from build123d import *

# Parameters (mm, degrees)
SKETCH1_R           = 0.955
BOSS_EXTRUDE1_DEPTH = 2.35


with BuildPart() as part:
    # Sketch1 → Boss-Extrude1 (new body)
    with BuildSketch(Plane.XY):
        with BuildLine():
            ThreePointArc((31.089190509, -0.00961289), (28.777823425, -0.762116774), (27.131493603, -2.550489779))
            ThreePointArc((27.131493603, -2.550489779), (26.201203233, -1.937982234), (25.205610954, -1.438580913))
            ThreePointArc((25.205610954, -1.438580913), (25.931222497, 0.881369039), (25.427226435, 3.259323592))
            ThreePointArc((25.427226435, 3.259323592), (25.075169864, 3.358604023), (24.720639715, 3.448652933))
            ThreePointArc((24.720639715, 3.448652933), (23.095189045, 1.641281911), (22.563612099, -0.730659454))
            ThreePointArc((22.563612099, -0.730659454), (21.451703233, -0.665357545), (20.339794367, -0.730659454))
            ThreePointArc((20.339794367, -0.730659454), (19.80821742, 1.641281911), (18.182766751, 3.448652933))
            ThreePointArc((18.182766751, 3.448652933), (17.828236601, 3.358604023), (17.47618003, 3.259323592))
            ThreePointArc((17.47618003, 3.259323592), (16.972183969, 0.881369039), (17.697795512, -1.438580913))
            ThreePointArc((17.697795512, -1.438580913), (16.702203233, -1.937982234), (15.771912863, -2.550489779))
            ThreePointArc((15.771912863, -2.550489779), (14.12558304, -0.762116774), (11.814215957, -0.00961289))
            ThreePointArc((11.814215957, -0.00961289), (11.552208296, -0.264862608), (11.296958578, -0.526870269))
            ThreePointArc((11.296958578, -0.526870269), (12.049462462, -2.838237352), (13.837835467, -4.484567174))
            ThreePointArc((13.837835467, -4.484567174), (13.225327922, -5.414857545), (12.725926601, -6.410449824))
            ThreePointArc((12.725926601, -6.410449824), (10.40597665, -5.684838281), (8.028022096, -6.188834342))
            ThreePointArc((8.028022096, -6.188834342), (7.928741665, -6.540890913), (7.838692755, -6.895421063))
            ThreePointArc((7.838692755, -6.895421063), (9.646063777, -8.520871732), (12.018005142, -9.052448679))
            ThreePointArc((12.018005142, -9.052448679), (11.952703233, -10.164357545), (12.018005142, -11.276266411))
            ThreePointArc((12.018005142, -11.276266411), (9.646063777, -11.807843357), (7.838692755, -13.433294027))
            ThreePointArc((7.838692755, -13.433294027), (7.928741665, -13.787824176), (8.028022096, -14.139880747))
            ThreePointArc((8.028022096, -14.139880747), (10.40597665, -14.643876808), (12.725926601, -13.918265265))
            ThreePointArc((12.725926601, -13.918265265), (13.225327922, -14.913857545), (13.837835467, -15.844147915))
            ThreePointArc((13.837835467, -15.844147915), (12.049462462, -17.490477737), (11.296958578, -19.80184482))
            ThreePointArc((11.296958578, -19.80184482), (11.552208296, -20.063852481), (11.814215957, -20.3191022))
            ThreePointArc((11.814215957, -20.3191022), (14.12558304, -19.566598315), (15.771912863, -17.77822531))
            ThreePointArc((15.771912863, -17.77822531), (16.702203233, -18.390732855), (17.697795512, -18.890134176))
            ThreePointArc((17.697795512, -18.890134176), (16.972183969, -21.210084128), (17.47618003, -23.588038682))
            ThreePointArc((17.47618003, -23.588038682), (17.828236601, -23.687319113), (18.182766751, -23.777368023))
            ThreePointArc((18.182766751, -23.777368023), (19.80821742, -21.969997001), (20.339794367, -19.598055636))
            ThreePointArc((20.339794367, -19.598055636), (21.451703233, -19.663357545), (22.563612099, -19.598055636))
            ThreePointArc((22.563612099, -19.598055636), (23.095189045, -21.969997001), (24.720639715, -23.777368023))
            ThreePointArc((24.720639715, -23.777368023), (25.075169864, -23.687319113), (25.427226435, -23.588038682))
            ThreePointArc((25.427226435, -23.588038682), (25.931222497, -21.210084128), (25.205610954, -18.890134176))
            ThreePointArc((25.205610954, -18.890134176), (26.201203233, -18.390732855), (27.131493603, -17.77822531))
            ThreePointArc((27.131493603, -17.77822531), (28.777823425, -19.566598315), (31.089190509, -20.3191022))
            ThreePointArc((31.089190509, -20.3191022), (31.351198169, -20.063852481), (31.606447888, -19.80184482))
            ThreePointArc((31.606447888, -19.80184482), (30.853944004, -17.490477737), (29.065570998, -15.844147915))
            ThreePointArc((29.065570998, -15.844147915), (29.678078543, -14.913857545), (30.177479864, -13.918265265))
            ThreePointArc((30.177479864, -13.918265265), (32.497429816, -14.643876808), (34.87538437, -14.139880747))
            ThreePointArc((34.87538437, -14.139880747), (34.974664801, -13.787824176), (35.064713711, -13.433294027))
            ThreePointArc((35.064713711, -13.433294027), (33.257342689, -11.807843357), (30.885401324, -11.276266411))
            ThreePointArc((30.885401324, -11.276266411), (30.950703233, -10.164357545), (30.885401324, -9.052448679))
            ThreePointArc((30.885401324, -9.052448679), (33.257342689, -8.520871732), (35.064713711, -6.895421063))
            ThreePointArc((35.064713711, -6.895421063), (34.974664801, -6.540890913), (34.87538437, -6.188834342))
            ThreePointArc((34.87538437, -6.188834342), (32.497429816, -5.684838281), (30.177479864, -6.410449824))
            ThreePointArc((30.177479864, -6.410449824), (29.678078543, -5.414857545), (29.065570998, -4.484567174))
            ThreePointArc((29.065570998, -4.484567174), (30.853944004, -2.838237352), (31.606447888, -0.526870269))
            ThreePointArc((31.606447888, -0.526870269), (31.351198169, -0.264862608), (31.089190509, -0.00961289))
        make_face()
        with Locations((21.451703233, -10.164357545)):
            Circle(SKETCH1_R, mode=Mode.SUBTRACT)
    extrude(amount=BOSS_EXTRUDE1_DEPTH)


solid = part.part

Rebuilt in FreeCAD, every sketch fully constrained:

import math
import FreeCAD as App
import Part
import Sketcher
from FreeCAD import Vector

doc = App.newDocument("Part")
body = doc.addObject("PartDesign::Body", "Body")

# Sketch on XY plane
sketch1 = body.newObject("Sketcher::SketchObject", "Sketch")
sketch1.AttachmentSupport = (doc.getObject("XY_Plane"), [""])
sketch1.MapMode = "FlatFace"
sketch1.addGeometry(Part.ArcOfCircle(Part.Circle(Vector(31.4, -4.8, 0), Vector(0, 0, 1), 4.8), math.radians(93), math.radians(152)), False)
sketch1.addGeometry(Part.ArcOfCircle(Part.Circle(Vector(21.5, -10.2, 0), Vector(0, 0, 1), 9.5), math.radians(53.28), math.radians(66.72)), False)
sketch1.addGeometry(Part.ArcOfCircle(Part.Circle(Vector(21.1, 1.1, 0), Vector(0, 0, 1), 4.8), math.radians(-32), math.radians(27)), False)
sketch1.addGeometry(Part.ArcOfCircle(Part.Circle(Vector(21.5, -10.2, 0), Vector(0, 0, 1), 14), math.radians(73.5), math.radians(76.5)), False)
sketch1.addGeometry(Part.ArcOfCircle(Part.Circle(Vector(27.4, -0.6, 0), Vector(0, 0, 1), 4.8), math.radians(123), math.radians(182)), False)
sketch1.addGeometry(Part.ArcOfCircle(Part.Circle(Vector(21.5, -10.2, 0), Vector(0, 0, 1), 9.5), math.radians(83.28), math.radians(96.72)), False)
sketch1.addGeometry(Part.ArcOfCircle(Part.Circle(Vector(15.5, -0.6, 0), Vector(0, 0, 1), 4.8), math.radians(-2), math.radians(57)), False)
sketch1.addGeometry(Part.ArcOfCircle(Part.Circle(Vector(21.5, -10.2, 0), Vector(0, 0, 1), 14), math.radians(103.5), math.radians(106.5)), False)
sketch1.addGeometry(Part.ArcOfCircle(Part.Circle(Vector(21.8, 1.1, 0), Vector(0, 0, 1), 4.8), math.radians(153), math.radians(212)), False)
sketch1.addGeometry(Part.ArcOfCircle(Part.Circle(Vector(21.5, -10.2, 0), Vector(0, 0, 1), 9.5), math.radians(113.28), math.radians(126.72)), False)
sketch1.addGeometry(Part.ArcOfCircle(Part.Circle(Vector(11.5, -4.8, 0), Vector(0, 0, 1), 4.8), math.radians(28), math.radians(87)), False)
sketch1.addGeometry(Part.ArcOfCircle(Part.Circle(Vector(21.5, -10.2, 0), Vector(0, 0, 1), 14), math.radians(133.5), math.radians(136.5)), False)
sketch1.addGeometry(Part.ArcOfCircle(Part.Circle(Vector(16.1, -0.2, 0), Vector(0, 0, 1), 4.8), math.radians(-177), math.radians(-118)), False)
sketch1.addGeometry(Part.ArcOfCircle(Part.Circle(Vector(21.5, -10.2, 0), Vector(0, 0, 1), 9.5), math.radians(143.28), math.radians(156.72)), False)
sketch1.addGeometry(Part.ArcOfCircle(Part.Circle(Vector(10.2, -10.5, 0), Vector(0, 0, 1), 4.8), math.radians(58), math.radians(117)), False)
sketch1.addGeometry(Part.ArcOfCircle(Part.Circle(Vector(21.5, -10.2, 0), Vector(0, 0, 1), 14), math.radians(163.5), math.radians(166.5)), False)
sketch1.addGeometry(Part.ArcOfCircle(Part.Circle(Vector(11.8, -4.3, 0), Vector(0, 0, 1), 4.8), math.radians(-147), math.radians(-88)), False)
sketch1.addGeometry(Part.ArcOfCircle(Part.Circle(Vector(21.5, -10.2, 0), Vector(0, 0, 1), 9.5), math.radians(173.28), math.radians(186.72)), False)
sketch1.addGeometry(Part.ArcOfCircle(Part.Circle(Vector(11.8, -16.1, 0), Vector(0, 0, 1), 4.8), math.radians(88), math.radians(147)), False)
sketch1.addGeometry(Part.ArcOfCircle(Part.Circle(Vector(21.5, -10.2, 0), Vector(0, 0, 1), 14), math.radians(-166.5), math.radians(-163.5)), False)
sketch1.addGeometry(Part.ArcOfCircle(Part.Circle(Vector(10.2, -9.8, 0), Vector(0, 0, 1), 4.8), math.radians(-117), math.radians(-58)), False)
sketch1.addGeometry(Part.ArcOfCircle(Part.Circle(Vector(21.5, -10.2, 0), Vector(0, 0, 1), 9.5), math.radians(-156.72), math.radians(-143.28)), False)
sketch1.addGeometry(Part.ArcOfCircle(Part.Circle(Vector(16.1, -20.1, 0), Vector(0, 0, 1), 4.8), math.radians(118), math.radians(177)), False)
sketch1.addGeometry(Part.ArcOfCircle(Part.Circle(Vector(21.5, -10.2, 0), Vector(0, 0, 1), 14), math.radians(-136.5), math.radians(-133.5)), False)
sketch1.addGeometry(Part.ArcOfCircle(Part.Circle(Vector(11.5, -15.5, 0), Vector(0, 0, 1), 4.8), math.radians(-87), math.radians(-28)), False)
sketch1.addGeometry(Part.ArcOfCircle(Part.Circle(Vector(21.5, -10.2, 0), Vector(0, 0, 1), 9.5), math.radians(-126.72), math.radians(-113.28)), False)
sketch1.addGeometry(Part.ArcOfCircle(Part.Circle(Vector(21.8, -21.4, 0), Vector(0, 0, 1), 4.8), math.radians(148), math.radians(207)), False)
sketch1.addGeometry(Part.ArcOfCircle(Part.Circle(Vector(21.5, -10.2, 0), Vector(0, 0, 1), 14), math.radians(-106.5), math.radians(-103.5)), False)
sketch1.addGeometry(Part.ArcOfCircle(Part.Circle(Vector(15.5, -19.8, 0), Vector(0, 0, 1), 4.8), math.radians(-57), math.radians(2)), False)
sketch1.addGeometry(Part.ArcOfCircle(Part.Circle(Vector(21.5, -10.2, 0), Vector(0, 0, 1), 9.5), math.radians(-96.72), math.radians(-83.28)), False)
sketch1.addGeometry(Part.ArcOfCircle(Part.Circle(Vector(27.4, -19.8, 0), Vector(0, 0, 1), 4.8), math.radians(178), math.radians(237)), False)
sketch1.addGeometry(Part.ArcOfCircle(Part.Circle(Vector(21.5, -10.2, 0), Vector(0, 0, 1), 14), math.radians(-76.5), math.radians(-73.5)), False)
sketch1.addGeometry(Part.ArcOfCircle(Part.Circle(Vector(21.1, -21.4, 0), Vector(0, 0, 1), 4.8), math.radians(-27), math.radians(32)), False)
sketch1.addGeometry(Part.ArcOfCircle(Part.Circle(Vector(21.5, -10.2, 0), Vector(0, 0, 1), 9.5), math.radians(-66.72), math.radians(-53.28)), False)
sketch1.addGeometry(Part.ArcOfCircle(Part.Circle(Vector(31.4, -15.5, 0), Vector(0, 0, 1), 4.8), math.radians(-152), math.radians(-93)), False)
sketch1.addGeometry(Part.ArcOfCircle(Part.Circle(Vector(21.5, -10.2, 0), Vector(0, 0, 1), 14), math.radians(-46.5), math.radians(-43.5)), False)
sketch1.addGeometry(Part.ArcOfCircle(Part.Circle(Vector(26.8, -20.1, 0), Vector(0, 0, 1), 4.8), math.radians(3), math.radians(62)), False)
sketch1.addGeometry(Part.ArcOfCircle(Part.Circle(Vector(21.5, -10.2, 0), Vector(0, 0, 1), 9.5), math.radians(-36.72), math.radians(-23.28)), False)
sketch1.addGeometry(Part.ArcOfCircle(Part.Circle(Vector(32.7, -9.8, 0), Vector(0, 0, 1), 4.8), math.radians(-122), math.radians(-63)), False)
sketch1.addGeometry(Part.ArcOfCircle(Part.Circle(Vector(21.5, -10.2, 0), Vector(0, 0, 1), 14), math.radians(-16.5), math.radians(-13.5)), False)
sketch1.addGeometry(Part.ArcOfCircle(Part.Circle(Vector(31.1, -16.1, 0), Vector(0, 0, 1), 4.8), math.radians(33), math.radians(92)), False)
sketch1.addGeometry(Part.ArcOfCircle(Part.Circle(Vector(21.5, -10.2, 0), Vector(0, 0, 1), 9.5), math.radians(-6.72), math.radians(6.72)), False)
sketch1.addGeometry(Part.ArcOfCircle(Part.Circle(Vector(31.1, -4.3, 0), Vector(0, 0, 1), 4.8), math.radians(-92), math.radians(-33)), False)
sketch1.addGeometry(Part.ArcOfCircle(Part.Circle(Vector(21.5, -10.2, 0), Vector(0, 0, 1), 14), math.radians(13.5), math.radians(16.5)), False)
sketch1.addGeometry(Part.ArcOfCircle(Part.Circle(Vector(32.7, -10.5, 0), Vector(0, 0, 1), 4.8), math.radians(63), math.radians(122)), False)
sketch1.addGeometry(Part.ArcOfCircle(Part.Circle(Vector(21.5, -10.2, 0), Vector(0, 0, 1), 9.5), math.radians(23.28), math.radians(36.72)), False)
sketch1.addGeometry(Part.ArcOfCircle(Part.Circle(Vector(26.8, -0.2, 0), Vector(0, 0, 1), 4.8), math.radians(-62), math.radians(-3)), False)
sketch1.addGeometry(Part.ArcOfCircle(Part.Circle(Vector(21.5, -10.2, 0), Vector(0, 0, 1), 14), math.radians(43.5), math.radians(46.5)), False)
sketch1.addGeometry(Part.Circle(Vector(21.5, -10.2, 0), Vector(0, 0, 1), 1), False)
sketch1.addConstraint(Sketcher.Constraint("Coincident", 0, 2, 1, 1))
sketch1.addConstraint(Sketcher.Constraint("Coincident", 1, 2, 2, 1))
sketch1.addConstraint(Sketcher.Constraint("Coincident", 2, 2, 3, 1))
sketch1.addConstraint(Sketcher.Constraint("Coincident", 3, 2, 4, 1))
sketch1.addConstraint(Sketcher.Constraint("Coincident", 4, 2, 5, 1))
sketch1.addConstraint(Sketcher.Constraint("Coincident", 5, 2, 6, 1))
sketch1.addConstraint(Sketcher.Constraint("Coincident", 6, 2, 7, 1))
sketch1.addConstraint(Sketcher.Constraint("Coincident", 7, 2, 8, 1))
sketch1.addConstraint(Sketcher.Constraint("Coincident", 8, 2, 9, 1))
sketch1.addConstraint(Sketcher.Constraint("Coincident", 9, 2, 10, 1))
sketch1.addConstraint(Sketcher.Constraint("Coincident", 10, 2, 11, 1))
sketch1.addConstraint(Sketcher.Constraint("Coincident", 11, 2, 12, 1))
sketch1.addConstraint(Sketcher.Constraint("Coincident", 12, 2, 13, 1))
sketch1.addConstraint(Sketcher.Constraint("Coincident", 13, 2, 14, 1))
sketch1.addConstraint(Sketcher.Constraint("Coincident", 14, 2, 15, 1))
sketch1.addConstraint(Sketcher.Constraint("Coincident", 15, 2, 16, 1))
sketch1.addConstraint(Sketcher.Constraint("Coincident", 16, 2, 17, 1))
sketch1.addConstraint(Sketcher.Constraint("Coincident", 17, 2, 18, 1))
sketch1.addConstraint(Sketcher.Constraint("Coincident", 18, 2, 19, 1))
sketch1.addConstraint(Sketcher.Constraint("Coincident", 19, 2, 20, 1))
sketch1.addConstraint(Sketcher.Constraint("Coincident", 20, 2, 21, 1))
sketch1.addConstraint(Sketcher.Constraint("Coincident", 21, 2, 22, 1))
sketch1.addConstraint(Sketcher.Constraint("Coincident", 22, 2, 23, 1))
sketch1.addConstraint(Sketcher.Constraint("Coincident", 23, 2, 24, 1))
sketch1.addConstraint(Sketcher.Constraint("Coincident", 24, 2, 25, 1))
sketch1.addConstraint(Sketcher.Constraint("Coincident", 25, 2, 26, 1))
sketch1.addConstraint(Sketcher.Constraint("Coincident", 26, 2, 27, 1))
sketch1.addConstraint(Sketcher.Constraint("Coincident", 27, 2, 28, 1))
sketch1.addConstraint(Sketcher.Constraint("Coincident", 28, 2, 29, 1))
sketch1.addConstraint(Sketcher.Constraint("Coincident", 29, 2, 30, 1))
sketch1.addConstraint(Sketcher.Constraint("Coincident", 30, 2, 31, 1))
sketch1.addConstraint(Sketcher.Constraint("Coincident", 31, 2, 32, 1))
sketch1.addConstraint(Sketcher.Constraint("Coincident", 32, 2, 33, 1))
sketch1.addConstraint(Sketcher.Constraint("Coincident", 33, 2, 34, 1))
sketch1.addConstraint(Sketcher.Constraint("Coincident", 34, 2, 35, 1))
sketch1.addConstraint(Sketcher.Constraint("Coincident", 35, 2, 36, 1))
sketch1.addConstraint(Sketcher.Constraint("Coincident", 36, 2, 37, 1))
sketch1.addConstraint(Sketcher.Constraint("Coincident", 37, 2, 38, 1))
sketch1.addConstraint(Sketcher.Constraint("Coincident", 38, 2, 39, 1))
sketch1.addConstraint(Sketcher.Constraint("Coincident", 39, 2, 40, 1))
sketch1.addConstraint(Sketcher.Constraint("Coincident", 40, 2, 41, 1))
sketch1.addConstraint(Sketcher.Constraint("Coincident", 41, 2, 42, 1))
sketch1.addConstraint(Sketcher.Constraint("Coincident", 42, 2, 43, 1))
sketch1.addConstraint(Sketcher.Constraint("Coincident", 43, 2, 44, 1))
sketch1.addConstraint(Sketcher.Constraint("Coincident", 44, 2, 45, 1))
sketch1.addConstraint(Sketcher.Constraint("Coincident", 45, 2, 46, 1))
sketch1.addConstraint(Sketcher.Constraint("Coincident", 46, 2, 47, 1))
sketch1.addConstraint(Sketcher.Constraint("Coincident", 47, 2, 0, 1))
sketch1.addConstraint(Sketcher.Constraint("Coincident", 3, 3, 1, 3))
sketch1.addConstraint(Sketcher.Constraint("Coincident", 5, 3, 1, 3))
sketch1.addConstraint(Sketcher.Constraint("Coincident", 7, 3, 1, 3))
sketch1.addConstraint(Sketcher.Constraint("Coincident", 9, 3, 1, 3))
sketch1.addConstraint(Sketcher.Constraint("Coincident", 11, 3, 1, 3))
sketch1.addConstraint(Sketcher.Constraint("Coincident", 13, 3, 1, 3))
sketch1.addConstraint(Sketcher.Constraint("Coincident", 15, 3, 1, 3))
sketch1.addConstraint(Sketcher.Constraint("Coincident", 17, 3, 1, 3))
sketch1.addConstraint(Sketcher.Constraint("Coincident", 19, 3, 1, 3))
sketch1.addConstraint(Sketcher.Constraint("Coincident", 21, 3, 1, 3))
sketch1.addConstraint(Sketcher.Constraint("Coincident", 23, 3, 1, 3))
sketch1.addConstraint(Sketcher.Constraint("Coincident", 25, 3, 1, 3))
sketch1.addConstraint(Sketcher.Constraint("Coincident", 27, 3, 1, 3))
sketch1.addConstraint(Sketcher.Constraint("Coincident", 29, 3, 1, 3))
sketch1.addConstraint(Sketcher.Constraint("Coincident", 31, 3, 1, 3))
sketch1.addConstraint(Sketcher.Constraint("Coincident", 33, 3, 1, 3))
sketch1.addConstraint(Sketcher.Constraint("Coincident", 35, 3, 1, 3))
sketch1.addConstraint(Sketcher.Constraint("Coincident", 37, 3, 1, 3))
sketch1.addConstraint(Sketcher.Constraint("Coincident", 39, 3, 1, 3))
sketch1.addConstraint(Sketcher.Constraint("Coincident", 41, 3, 1, 3))
sketch1.addConstraint(Sketcher.Constraint("Coincident", 43, 3, 1, 3))
sketch1.addConstraint(Sketcher.Constraint("Coincident", 45, 3, 1, 3))
sketch1.addConstraint(Sketcher.Constraint("Coincident", 47, 3, 1, 3))
sketch1.addConstraint(Sketcher.Constraint("Coincident", 48, 3, 1, 3))
sketch1.addConstraint(Sketcher.Constraint("Equal", 0, 2))
sketch1.addConstraint(Sketcher.Constraint("Equal", 2, 4))
sketch1.addConstraint(Sketcher.Constraint("Equal", 1, 5))
sketch1.addConstraint(Sketcher.Constraint("Equal", 4, 6))
sketch1.addConstraint(Sketcher.Constraint("Equal", 3, 7))
sketch1.addConstraint(Sketcher.Constraint("Equal", 6, 8))
sketch1.addConstraint(Sketcher.Constraint("Equal", 5, 9))
sketch1.addConstraint(Sketcher.Constraint("Equal", 8, 10))
sketch1.addConstraint(Sketcher.Constraint("Equal", 7, 11))
sketch1.addConstraint(Sketcher.Constraint("Equal", 10, 12))
sketch1.addConstraint(Sketcher.Constraint("Equal", 9, 13))
sketch1.addConstraint(Sketcher.Constraint("Equal", 12, 14))
sketch1.addConstraint(Sketcher.Constraint("Equal", 11, 15))
sketch1.addConstraint(Sketcher.Constraint("Equal", 14, 16))
sketch1.addConstraint(Sketcher.Constraint("Equal", 13, 17))
sketch1.addConstraint(Sketcher.Constraint("Equal", 16, 18))
sketch1.addConstraint(Sketcher.Constraint("Equal", 15, 19))
sketch1.addConstraint(Sketcher.Constraint("Equal", 18, 20))
sketch1.addConstraint(Sketcher.Constraint("Equal", 17, 21))
sketch1.addConstraint(Sketcher.Constraint("Equal", 20, 22))
sketch1.addConstraint(Sketcher.Constraint("Equal", 19, 23))
sketch1.addConstraint(Sketcher.Constraint("Equal", 22, 24))
sketch1.addConstraint(Sketcher.Constraint("Equal", 21, 25))
sketch1.addConstraint(Sketcher.Constraint("Equal", 24, 26))
sketch1.addConstraint(Sketcher.Constraint("Equal", 23, 27))
sketch1.addConstraint(Sketcher.Constraint("Equal", 26, 28))
sketch1.addConstraint(Sketcher.Constraint("Equal", 25, 29))
sketch1.addConstraint(Sketcher.Constraint("Equal", 28, 30))
sketch1.addConstraint(Sketcher.Constraint("Equal", 27, 31))
sketch1.addConstraint(Sketcher.Constraint("Equal", 30, 32))
sketch1.addConstraint(Sketcher.Constraint("Equal", 29, 33))
sketch1.addConstraint(Sketcher.Constraint("Equal", 32, 34))
sketch1.addConstraint(Sketcher.Constraint("Equal", 31, 35))
sketch1.addConstraint(Sketcher.Constraint("Equal", 34, 36))
sketch1.addConstraint(Sketcher.Constraint("Equal", 33, 37))
sketch1.addConstraint(Sketcher.Constraint("Equal", 36, 38))
sketch1.addConstraint(Sketcher.Constraint("Equal", 35, 39))
sketch1.addConstraint(Sketcher.Constraint("Equal", 38, 40))
sketch1.addConstraint(Sketcher.Constraint("Equal", 37, 41))
sketch1.addConstraint(Sketcher.Constraint("Equal", 40, 42))
sketch1.addConstraint(Sketcher.Constraint("Equal", 39, 43))
sketch1.addConstraint(Sketcher.Constraint("Equal", 42, 44))
sketch1.addConstraint(Sketcher.Constraint("Equal", 41, 45))
sketch1.addConstraint(Sketcher.Constraint("Equal", 44, 46))
sketch1.addConstraint(Sketcher.Constraint("Equal", 43, 47))
sketch1.addConstraint(Sketcher.Constraint("Horizontal", 4, 3, 6, 3))
sketch1.addConstraint(Sketcher.Constraint("Horizontal", 2, 3, 8, 3))
sketch1.addConstraint(Sketcher.Constraint("Horizontal", 0, 3, 10, 3))
sketch1.addConstraint(Sketcher.Constraint("Horizontal", 28, 3, 30, 3))
sketch1.addConstraint(Sketcher.Constraint("Horizontal", 26, 3, 32, 3))
sketch1.addConstraint(Sketcher.Constraint("Horizontal", 24, 3, 34, 3))
sketch1.addConstraint(Sketcher.Constraint("Horizontal", 22, 3, 36, 3))
sketch1.addConstraint(Sketcher.Constraint("Horizontal", 20, 3, 38, 3))
sketch1.addConstraint(Sketcher.Constraint("Horizontal", 18, 3, 40, 3))
sketch1.addConstraint(Sketcher.Constraint("Horizontal", 16, 3, 42, 3))
sketch1.addConstraint(Sketcher.Constraint("Horizontal", 14, 3, 44, 3))
sketch1.addConstraint(Sketcher.Constraint("Horizontal", 12, 3, 46, 3))
sketch1.addConstraint(Sketcher.Constraint("Horizontal", 4, 2, 5, 2))
sketch1.addConstraint(Sketcher.Constraint("Horizontal", 2, 2, 7, 2))
sketch1.addConstraint(Sketcher.Constraint("Horizontal", 0, 2, 9, 2))
sketch1.addConstraint(Sketcher.Constraint("Horizontal", 28, 2, 29, 2))
sketch1.addConstraint(Sketcher.Constraint("Horizontal", 26, 2, 31, 2))
sketch1.addConstraint(Sketcher.Constraint("Horizontal", 24, 2, 33, 2))
sketch1.addConstraint(Sketcher.Constraint("Horizontal", 22, 2, 35, 2))
sketch1.addConstraint(Sketcher.Constraint("Horizontal", 20, 2, 37, 2))
sketch1.addConstraint(Sketcher.Constraint("Horizontal", 18, 2, 39, 2))
sketch1.addConstraint(Sketcher.Constraint("Horizontal", 16, 2, 41, 2))
sketch1.addConstraint(Sketcher.Constraint("Horizontal", 14, 2, 43, 2))
sketch1.addConstraint(Sketcher.Constraint("Horizontal", 12, 2, 45, 2))
sketch1.addConstraint(Sketcher.Constraint("Vertical", 16, 3, 18, 3))
sketch1.addConstraint(Sketcher.Constraint("Vertical", 14, 3, 20, 3))
sketch1.addConstraint(Sketcher.Constraint("Vertical", 12, 3, 22, 3))
sketch1.addConstraint(Sketcher.Constraint("Vertical", 10, 3, 24, 3))
sketch1.addConstraint(Sketcher.Constraint("Vertical", 8, 3, 26, 3))
sketch1.addConstraint(Sketcher.Constraint("Vertical", 6, 3, 28, 3))
sketch1.addConstraint(Sketcher.Constraint("Vertical", 16, 2, 17, 2))
sketch1.addConstraint(Sketcher.Constraint("Vertical", 14, 2, 19, 2))
sketch1.addConstraint(Sketcher.Constraint("Vertical", 12, 2, 21, 2))
sketch1.addConstraint(Sketcher.Constraint("Vertical", 10, 2, 23, 2))
sketch1.addConstraint(Sketcher.Constraint("Vertical", 8, 2, 25, 2))
sketch1.addConstraint(Sketcher.Constraint("Vertical", 6, 2, 27, 2))
sketch1.addConstraint(Sketcher.Constraint("Radius", 3, 14.0))
sketch1.addConstraint(Sketcher.Constraint("Radius", 0, 4.8))
sketch1.addConstraint(Sketcher.Constraint("Diameter", 48, 1.91))
sketch1.addConstraint(Sketcher.Constraint("Radius", 1, 9.499))
sketch1.addConstraint(Sketcher.Constraint("DistanceX", -1, 1, 35, 3, 21.451702))
sketch1.addConstraint(Sketcher.Constraint("DistanceX", -1, 1, 40, 2, 30.885401))
sketch1.addConstraint(Sketcher.Constraint("DistanceY", 0, 3, -1, 1, 4.801331))
sketch1.addConstraint(Sketcher.Constraint("DistanceY", -1, 1, 2, 3, 1.107549))
sketch1.addConstraint(Sketcher.Constraint("DistanceX", -1, 1, 10, 3, 11.532371))
sketch1.addConstraint(Sketcher.Constraint("DistanceX", -1, 1, 16, 3, 11.84752))
sketch1.addConstraint(Sketcher.Constraint("DistanceY", 20, 3, -1, 1, 9.849209))
sketch1.addConstraint(Sketcher.Constraint("DistanceY", 22, 3, -1, 1, 20.08369))
sketch1.addConstraint(Sketcher.Constraint("DistanceY", 28, 3, -1, 1, 19.768541))
sketch1.addConstraint(Sketcher.Constraint("DistanceX", -1, 1, 36, 3, 26.81473))
sketch1.addConstraint(Sketcher.Constraint("DistanceX", -1, 1, 38, 3, 32.72361))
sketch1.addConstraint(Sketcher.Constraint("DistanceY", 47, 3, -1, 1, 10.164358))
sketch1.addConstraint(Sketcher.Constraint("DistanceX", -1, 1, 1, 2, 25.205611))
sketch1.addConstraint(Sketcher.Constraint("DistanceX", -1, 1, 3, 2, 24.72064))
pad1 = body.newObject("PartDesign::Pad", "Pad")
pad1.Profile = sketch1
pad1.Length = 2.35

doc.recompute()
